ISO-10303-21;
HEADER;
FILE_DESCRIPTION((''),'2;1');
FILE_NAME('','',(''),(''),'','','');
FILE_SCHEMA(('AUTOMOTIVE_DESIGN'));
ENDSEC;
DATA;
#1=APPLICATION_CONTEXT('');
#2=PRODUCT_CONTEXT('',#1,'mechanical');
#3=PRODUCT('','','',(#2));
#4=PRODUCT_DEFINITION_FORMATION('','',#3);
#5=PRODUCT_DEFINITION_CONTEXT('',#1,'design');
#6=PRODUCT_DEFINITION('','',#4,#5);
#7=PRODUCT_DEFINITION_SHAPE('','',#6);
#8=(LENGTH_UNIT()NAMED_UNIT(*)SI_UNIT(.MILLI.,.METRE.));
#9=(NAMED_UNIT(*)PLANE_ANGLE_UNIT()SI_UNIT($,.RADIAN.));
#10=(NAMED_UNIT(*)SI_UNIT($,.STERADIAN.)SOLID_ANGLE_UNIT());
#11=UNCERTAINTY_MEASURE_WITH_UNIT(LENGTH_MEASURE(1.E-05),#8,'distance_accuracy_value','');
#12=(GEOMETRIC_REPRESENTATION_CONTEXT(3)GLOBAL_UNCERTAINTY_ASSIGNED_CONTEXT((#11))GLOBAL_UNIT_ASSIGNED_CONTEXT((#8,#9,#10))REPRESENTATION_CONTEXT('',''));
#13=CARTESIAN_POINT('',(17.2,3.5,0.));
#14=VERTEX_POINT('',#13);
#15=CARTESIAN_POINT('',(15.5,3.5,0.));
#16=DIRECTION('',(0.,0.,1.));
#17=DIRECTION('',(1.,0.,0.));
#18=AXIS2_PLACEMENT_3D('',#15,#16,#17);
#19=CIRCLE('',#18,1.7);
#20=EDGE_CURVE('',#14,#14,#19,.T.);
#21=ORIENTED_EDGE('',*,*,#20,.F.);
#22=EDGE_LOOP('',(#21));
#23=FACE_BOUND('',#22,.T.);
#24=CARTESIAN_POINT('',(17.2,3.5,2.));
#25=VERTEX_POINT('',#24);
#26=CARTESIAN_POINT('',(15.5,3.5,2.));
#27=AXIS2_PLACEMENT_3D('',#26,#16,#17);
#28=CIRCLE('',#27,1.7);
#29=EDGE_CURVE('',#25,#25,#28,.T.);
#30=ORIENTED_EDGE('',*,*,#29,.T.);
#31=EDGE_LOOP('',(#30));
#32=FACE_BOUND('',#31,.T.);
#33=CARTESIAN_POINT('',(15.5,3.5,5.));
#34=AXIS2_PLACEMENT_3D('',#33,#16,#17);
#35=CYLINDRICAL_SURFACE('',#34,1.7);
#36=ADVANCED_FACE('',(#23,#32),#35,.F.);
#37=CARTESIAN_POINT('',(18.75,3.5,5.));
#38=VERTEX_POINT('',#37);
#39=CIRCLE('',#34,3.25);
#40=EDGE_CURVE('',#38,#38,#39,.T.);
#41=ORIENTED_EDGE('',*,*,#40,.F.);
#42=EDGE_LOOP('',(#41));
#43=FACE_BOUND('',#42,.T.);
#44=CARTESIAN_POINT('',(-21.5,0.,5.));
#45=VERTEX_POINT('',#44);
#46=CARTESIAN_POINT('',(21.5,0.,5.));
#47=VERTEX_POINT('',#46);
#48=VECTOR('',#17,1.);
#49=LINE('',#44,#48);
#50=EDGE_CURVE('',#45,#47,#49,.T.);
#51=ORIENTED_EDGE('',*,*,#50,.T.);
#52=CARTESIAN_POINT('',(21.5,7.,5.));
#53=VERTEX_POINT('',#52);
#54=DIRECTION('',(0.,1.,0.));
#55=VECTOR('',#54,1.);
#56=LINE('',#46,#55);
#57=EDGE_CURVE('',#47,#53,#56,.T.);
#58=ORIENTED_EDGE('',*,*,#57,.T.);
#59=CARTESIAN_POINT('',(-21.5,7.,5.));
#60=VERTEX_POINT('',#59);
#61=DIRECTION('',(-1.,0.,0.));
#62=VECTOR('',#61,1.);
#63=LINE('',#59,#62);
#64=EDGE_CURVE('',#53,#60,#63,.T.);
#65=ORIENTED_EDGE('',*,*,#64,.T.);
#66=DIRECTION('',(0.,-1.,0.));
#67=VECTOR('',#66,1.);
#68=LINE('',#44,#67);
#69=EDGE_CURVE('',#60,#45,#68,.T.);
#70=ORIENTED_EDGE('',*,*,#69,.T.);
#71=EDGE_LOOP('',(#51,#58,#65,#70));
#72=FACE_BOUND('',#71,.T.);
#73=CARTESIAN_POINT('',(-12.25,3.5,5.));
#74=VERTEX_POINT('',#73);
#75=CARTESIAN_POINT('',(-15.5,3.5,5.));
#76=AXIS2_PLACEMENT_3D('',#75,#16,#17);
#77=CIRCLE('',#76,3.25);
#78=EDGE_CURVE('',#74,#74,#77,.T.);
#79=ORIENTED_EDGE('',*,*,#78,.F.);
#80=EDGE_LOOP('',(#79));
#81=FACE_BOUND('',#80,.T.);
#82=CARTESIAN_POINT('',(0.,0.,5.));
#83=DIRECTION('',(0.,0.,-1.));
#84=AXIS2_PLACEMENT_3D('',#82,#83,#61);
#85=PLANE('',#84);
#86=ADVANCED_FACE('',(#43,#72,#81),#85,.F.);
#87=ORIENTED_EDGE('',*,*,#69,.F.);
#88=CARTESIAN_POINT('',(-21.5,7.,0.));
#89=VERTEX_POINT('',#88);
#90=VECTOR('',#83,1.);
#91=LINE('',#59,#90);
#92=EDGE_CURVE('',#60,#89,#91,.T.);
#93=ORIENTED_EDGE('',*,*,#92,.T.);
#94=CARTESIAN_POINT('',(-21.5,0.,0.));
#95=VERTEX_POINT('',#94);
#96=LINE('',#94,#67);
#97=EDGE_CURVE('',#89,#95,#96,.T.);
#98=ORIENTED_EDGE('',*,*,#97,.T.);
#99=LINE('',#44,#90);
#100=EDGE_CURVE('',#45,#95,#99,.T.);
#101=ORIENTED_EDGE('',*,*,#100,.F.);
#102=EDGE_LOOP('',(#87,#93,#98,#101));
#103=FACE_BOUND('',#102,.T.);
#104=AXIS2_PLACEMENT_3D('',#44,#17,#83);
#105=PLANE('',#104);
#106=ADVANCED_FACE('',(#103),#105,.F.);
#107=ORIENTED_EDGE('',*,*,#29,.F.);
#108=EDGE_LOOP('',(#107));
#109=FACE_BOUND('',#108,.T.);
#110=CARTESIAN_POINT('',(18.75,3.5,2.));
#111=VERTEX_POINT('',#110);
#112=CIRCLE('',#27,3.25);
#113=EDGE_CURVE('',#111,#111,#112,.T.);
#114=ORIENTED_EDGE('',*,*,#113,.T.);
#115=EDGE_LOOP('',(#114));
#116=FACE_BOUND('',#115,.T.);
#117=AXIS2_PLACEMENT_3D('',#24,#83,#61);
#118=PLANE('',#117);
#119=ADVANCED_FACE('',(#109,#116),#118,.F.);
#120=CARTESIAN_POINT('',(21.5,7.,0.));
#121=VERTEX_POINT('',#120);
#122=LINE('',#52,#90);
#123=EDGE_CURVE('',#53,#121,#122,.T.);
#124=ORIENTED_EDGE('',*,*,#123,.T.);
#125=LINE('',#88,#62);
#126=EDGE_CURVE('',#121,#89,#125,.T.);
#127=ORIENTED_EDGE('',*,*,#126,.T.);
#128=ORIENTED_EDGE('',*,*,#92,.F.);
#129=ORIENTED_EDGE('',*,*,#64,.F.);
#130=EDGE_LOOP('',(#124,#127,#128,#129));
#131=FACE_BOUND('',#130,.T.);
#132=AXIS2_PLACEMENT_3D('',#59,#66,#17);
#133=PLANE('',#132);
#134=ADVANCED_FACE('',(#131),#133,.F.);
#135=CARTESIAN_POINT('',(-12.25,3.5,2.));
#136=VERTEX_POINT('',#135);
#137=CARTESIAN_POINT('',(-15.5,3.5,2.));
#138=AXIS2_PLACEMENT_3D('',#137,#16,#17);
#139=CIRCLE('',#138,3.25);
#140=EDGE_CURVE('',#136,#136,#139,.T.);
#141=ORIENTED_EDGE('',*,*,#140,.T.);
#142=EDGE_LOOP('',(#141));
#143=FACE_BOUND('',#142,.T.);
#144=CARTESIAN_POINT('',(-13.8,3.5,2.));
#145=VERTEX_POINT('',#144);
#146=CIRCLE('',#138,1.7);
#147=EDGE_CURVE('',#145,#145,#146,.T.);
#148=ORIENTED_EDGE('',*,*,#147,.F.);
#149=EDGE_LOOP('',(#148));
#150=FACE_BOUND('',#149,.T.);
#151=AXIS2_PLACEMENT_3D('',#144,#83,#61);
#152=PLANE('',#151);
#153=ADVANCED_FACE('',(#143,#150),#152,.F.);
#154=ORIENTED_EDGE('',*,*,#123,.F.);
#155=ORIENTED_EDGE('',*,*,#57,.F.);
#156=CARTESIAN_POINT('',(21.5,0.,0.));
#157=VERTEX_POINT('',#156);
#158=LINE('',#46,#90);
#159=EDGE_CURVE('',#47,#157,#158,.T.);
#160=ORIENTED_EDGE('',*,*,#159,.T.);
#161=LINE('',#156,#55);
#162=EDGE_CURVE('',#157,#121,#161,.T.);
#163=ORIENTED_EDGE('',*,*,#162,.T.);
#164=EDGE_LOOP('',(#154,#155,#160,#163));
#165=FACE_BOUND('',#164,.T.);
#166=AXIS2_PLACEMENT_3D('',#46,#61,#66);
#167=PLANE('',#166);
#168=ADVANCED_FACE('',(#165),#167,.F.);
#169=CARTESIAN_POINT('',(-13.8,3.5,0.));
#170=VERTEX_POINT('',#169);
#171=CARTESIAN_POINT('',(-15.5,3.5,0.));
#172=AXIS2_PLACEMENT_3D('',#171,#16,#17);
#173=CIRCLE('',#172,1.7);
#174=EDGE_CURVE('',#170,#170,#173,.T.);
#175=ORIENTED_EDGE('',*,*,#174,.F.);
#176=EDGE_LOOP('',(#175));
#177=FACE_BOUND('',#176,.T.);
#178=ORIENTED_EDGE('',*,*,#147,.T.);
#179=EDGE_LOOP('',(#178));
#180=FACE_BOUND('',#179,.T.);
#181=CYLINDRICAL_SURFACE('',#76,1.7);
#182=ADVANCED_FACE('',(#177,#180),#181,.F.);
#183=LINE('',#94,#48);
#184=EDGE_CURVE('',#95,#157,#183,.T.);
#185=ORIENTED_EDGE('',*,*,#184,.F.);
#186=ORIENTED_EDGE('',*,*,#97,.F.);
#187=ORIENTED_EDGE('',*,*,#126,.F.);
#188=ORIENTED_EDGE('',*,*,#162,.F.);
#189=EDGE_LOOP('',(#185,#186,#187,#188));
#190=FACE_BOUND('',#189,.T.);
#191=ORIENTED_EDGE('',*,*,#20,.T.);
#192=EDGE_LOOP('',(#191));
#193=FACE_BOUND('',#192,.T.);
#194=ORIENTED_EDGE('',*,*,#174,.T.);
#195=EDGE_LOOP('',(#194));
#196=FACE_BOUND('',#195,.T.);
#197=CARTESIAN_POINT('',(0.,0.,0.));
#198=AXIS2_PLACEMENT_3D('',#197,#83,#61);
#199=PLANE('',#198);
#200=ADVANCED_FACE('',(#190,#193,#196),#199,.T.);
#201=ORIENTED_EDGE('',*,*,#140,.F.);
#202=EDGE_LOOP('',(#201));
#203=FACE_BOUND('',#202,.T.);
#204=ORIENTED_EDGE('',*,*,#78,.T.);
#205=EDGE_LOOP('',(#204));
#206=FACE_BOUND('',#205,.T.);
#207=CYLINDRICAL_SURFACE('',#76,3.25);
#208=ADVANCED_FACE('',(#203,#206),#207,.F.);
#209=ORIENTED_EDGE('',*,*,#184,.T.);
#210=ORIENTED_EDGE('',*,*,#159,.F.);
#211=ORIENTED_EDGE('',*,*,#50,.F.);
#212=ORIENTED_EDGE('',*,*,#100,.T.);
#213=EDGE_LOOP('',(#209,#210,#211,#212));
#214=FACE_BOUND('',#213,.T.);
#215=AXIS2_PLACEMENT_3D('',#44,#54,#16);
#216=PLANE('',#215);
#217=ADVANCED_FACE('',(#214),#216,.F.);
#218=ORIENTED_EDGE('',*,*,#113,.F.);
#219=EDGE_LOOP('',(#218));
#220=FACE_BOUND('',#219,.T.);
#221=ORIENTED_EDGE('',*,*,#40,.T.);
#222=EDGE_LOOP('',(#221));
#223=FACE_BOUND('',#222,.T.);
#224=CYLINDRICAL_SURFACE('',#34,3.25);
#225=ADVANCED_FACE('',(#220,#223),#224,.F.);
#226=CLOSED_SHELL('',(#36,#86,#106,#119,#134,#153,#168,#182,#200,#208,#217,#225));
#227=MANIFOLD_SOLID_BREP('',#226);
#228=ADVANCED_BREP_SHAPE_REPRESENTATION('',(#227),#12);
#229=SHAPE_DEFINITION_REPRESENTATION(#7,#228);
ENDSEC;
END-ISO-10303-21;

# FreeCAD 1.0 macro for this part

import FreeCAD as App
import Part
import Sketcher
Q = App.Units.Quantity


def add_polygon(sketch, points):
    """Adds a closed chain of lines whose ends are joined by coincident constraints."""
    first, n = sketch.GeometryCount, len(points)
    for a, b in zip(points, points[1:] + points[:1]):
        sketch.addGeometry(Part.LineSegment(App.Vector(*a, 0), App.Vector(*b, 0)), False)
    for i in range(n):
        sketch.addConstraint(Sketcher.Constraint("Coincident", first + i, 2, first + (i + 1) % n, 1))

doc = App.newDocument("Part")
body = doc.addObject("PartDesign::Body", "Body")

# Sketch on XY plane
sketch1 = body.newObject("Sketcher::SketchObject", "Sketch")
sketch1.AttachmentSupport = (doc.getObject("XY_Plane"), [""])
sketch1.MapMode = "FlatFace"
add_polygon(sketch1, [(-22, 7), (-22, 0), (22, 0), (22, 7)])  # lines 0-3
sketch1.addConstraint([
    Sketcher.Constraint("Vertical", 0),
    Sketcher.Constraint("Horizontal", 1),
    Sketcher.Constraint("Vertical", 2),
    Sketcher.Constraint("Horizontal", 3),
    Sketcher.Constraint("Symmetric", 0, 2, 1, 2, -1, 1),
    Sketcher.Constraint("DistanceX", 1, 1, 1, 2, Q("43 mm")),
    Sketcher.Constraint("DistanceY", 0, 2, 0, 1, Q("7 mm")),
])
pad1 = body.newObject("PartDesign::Pad", "Pad")
pad1.Profile = sketch1
pad1.Length = 5

# Sketch on XY plane
sketch2 = body.newObject("Sketcher::SketchObject", "Sketch001")
sketch2.AttachmentSupport = (doc.getObject("XY_Plane"), [""])
sketch2.MapMode = "FlatFace"
sketch2.AttachmentOffset = App.Placement(App.Vector(0, 0, 5), App.Rotation())
sketch2.addGeometry([
    Part.Circle(App.Vector(-15.5, 3.5, 0), App.Vector(0, 0, 1), 1.7),
    Part.Circle(App.Vector(15.5, 3.5, 0), App.Vector(0, 0, 1), 1.7),
], False)
sketch2.addConstraint([
    Sketcher.Constraint("Equal", 0, 1),
    Sketcher.Constraint("Symmetric", 0, 3, 1, 3, -2),
    Sketcher.Constraint("Diameter", 0, Q("3.4 mm")),
    Sketcher.Constraint("DistanceX", 0, 3, 1, 3, Q("31 mm")),
    Sketcher.Constraint("DistanceY", -1, 1, 0, 3, Q("3.5 mm")),
])
doc.recompute()
hole = body.newObject("PartDesign::Hole", "Hole")
hole.Profile = sketch2
hole.ThreadType = "None"
hole.Diameter = 3.4
hole.DepthType = "ThroughAll"
hole.HoleCutType = "Counterbore"
hole.HoleCutDiameter = 6.5
hole.HoleCutDepth = 3

doc.recompute()
